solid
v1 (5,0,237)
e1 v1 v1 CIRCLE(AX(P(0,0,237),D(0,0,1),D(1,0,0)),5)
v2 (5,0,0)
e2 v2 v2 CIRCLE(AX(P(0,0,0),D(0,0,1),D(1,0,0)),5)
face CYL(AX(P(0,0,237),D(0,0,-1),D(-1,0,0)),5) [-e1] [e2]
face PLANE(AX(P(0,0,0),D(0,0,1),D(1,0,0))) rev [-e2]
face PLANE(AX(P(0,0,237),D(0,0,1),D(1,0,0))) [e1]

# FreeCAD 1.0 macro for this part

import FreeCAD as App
import Part
import Sketcher

V = App.Vector
Q = App.Units.Quantity

doc = App.newDocument("Part")
body = doc.addObject("PartDesign::Body", "Body")

sketch1 = doc.addObject("Sketcher::SketchObject", "Sketch")
body.addObject(sketch1)
sketch1.AttachmentSupport = (doc.XY_Plane, [""])
sketch1.MapMode = "FlatFace"
sketch1.addGeometry(Part.Circle(V(0, 0, 0), V(0, 0, 1), 5), False)
sketch1.addConstraint(Sketcher.Constraint("Coincident", 0, 3, -1, 1))
sketch1.addConstraint(Sketcher.Constraint("Diameter", 0, Q("10 mm")))
pad1 = doc.addObject("PartDesign::Pad", "Pad")
body.addObject(pad1)
pad1.Profile = sketch1
pad1.Length = 237

doc.recompute()
